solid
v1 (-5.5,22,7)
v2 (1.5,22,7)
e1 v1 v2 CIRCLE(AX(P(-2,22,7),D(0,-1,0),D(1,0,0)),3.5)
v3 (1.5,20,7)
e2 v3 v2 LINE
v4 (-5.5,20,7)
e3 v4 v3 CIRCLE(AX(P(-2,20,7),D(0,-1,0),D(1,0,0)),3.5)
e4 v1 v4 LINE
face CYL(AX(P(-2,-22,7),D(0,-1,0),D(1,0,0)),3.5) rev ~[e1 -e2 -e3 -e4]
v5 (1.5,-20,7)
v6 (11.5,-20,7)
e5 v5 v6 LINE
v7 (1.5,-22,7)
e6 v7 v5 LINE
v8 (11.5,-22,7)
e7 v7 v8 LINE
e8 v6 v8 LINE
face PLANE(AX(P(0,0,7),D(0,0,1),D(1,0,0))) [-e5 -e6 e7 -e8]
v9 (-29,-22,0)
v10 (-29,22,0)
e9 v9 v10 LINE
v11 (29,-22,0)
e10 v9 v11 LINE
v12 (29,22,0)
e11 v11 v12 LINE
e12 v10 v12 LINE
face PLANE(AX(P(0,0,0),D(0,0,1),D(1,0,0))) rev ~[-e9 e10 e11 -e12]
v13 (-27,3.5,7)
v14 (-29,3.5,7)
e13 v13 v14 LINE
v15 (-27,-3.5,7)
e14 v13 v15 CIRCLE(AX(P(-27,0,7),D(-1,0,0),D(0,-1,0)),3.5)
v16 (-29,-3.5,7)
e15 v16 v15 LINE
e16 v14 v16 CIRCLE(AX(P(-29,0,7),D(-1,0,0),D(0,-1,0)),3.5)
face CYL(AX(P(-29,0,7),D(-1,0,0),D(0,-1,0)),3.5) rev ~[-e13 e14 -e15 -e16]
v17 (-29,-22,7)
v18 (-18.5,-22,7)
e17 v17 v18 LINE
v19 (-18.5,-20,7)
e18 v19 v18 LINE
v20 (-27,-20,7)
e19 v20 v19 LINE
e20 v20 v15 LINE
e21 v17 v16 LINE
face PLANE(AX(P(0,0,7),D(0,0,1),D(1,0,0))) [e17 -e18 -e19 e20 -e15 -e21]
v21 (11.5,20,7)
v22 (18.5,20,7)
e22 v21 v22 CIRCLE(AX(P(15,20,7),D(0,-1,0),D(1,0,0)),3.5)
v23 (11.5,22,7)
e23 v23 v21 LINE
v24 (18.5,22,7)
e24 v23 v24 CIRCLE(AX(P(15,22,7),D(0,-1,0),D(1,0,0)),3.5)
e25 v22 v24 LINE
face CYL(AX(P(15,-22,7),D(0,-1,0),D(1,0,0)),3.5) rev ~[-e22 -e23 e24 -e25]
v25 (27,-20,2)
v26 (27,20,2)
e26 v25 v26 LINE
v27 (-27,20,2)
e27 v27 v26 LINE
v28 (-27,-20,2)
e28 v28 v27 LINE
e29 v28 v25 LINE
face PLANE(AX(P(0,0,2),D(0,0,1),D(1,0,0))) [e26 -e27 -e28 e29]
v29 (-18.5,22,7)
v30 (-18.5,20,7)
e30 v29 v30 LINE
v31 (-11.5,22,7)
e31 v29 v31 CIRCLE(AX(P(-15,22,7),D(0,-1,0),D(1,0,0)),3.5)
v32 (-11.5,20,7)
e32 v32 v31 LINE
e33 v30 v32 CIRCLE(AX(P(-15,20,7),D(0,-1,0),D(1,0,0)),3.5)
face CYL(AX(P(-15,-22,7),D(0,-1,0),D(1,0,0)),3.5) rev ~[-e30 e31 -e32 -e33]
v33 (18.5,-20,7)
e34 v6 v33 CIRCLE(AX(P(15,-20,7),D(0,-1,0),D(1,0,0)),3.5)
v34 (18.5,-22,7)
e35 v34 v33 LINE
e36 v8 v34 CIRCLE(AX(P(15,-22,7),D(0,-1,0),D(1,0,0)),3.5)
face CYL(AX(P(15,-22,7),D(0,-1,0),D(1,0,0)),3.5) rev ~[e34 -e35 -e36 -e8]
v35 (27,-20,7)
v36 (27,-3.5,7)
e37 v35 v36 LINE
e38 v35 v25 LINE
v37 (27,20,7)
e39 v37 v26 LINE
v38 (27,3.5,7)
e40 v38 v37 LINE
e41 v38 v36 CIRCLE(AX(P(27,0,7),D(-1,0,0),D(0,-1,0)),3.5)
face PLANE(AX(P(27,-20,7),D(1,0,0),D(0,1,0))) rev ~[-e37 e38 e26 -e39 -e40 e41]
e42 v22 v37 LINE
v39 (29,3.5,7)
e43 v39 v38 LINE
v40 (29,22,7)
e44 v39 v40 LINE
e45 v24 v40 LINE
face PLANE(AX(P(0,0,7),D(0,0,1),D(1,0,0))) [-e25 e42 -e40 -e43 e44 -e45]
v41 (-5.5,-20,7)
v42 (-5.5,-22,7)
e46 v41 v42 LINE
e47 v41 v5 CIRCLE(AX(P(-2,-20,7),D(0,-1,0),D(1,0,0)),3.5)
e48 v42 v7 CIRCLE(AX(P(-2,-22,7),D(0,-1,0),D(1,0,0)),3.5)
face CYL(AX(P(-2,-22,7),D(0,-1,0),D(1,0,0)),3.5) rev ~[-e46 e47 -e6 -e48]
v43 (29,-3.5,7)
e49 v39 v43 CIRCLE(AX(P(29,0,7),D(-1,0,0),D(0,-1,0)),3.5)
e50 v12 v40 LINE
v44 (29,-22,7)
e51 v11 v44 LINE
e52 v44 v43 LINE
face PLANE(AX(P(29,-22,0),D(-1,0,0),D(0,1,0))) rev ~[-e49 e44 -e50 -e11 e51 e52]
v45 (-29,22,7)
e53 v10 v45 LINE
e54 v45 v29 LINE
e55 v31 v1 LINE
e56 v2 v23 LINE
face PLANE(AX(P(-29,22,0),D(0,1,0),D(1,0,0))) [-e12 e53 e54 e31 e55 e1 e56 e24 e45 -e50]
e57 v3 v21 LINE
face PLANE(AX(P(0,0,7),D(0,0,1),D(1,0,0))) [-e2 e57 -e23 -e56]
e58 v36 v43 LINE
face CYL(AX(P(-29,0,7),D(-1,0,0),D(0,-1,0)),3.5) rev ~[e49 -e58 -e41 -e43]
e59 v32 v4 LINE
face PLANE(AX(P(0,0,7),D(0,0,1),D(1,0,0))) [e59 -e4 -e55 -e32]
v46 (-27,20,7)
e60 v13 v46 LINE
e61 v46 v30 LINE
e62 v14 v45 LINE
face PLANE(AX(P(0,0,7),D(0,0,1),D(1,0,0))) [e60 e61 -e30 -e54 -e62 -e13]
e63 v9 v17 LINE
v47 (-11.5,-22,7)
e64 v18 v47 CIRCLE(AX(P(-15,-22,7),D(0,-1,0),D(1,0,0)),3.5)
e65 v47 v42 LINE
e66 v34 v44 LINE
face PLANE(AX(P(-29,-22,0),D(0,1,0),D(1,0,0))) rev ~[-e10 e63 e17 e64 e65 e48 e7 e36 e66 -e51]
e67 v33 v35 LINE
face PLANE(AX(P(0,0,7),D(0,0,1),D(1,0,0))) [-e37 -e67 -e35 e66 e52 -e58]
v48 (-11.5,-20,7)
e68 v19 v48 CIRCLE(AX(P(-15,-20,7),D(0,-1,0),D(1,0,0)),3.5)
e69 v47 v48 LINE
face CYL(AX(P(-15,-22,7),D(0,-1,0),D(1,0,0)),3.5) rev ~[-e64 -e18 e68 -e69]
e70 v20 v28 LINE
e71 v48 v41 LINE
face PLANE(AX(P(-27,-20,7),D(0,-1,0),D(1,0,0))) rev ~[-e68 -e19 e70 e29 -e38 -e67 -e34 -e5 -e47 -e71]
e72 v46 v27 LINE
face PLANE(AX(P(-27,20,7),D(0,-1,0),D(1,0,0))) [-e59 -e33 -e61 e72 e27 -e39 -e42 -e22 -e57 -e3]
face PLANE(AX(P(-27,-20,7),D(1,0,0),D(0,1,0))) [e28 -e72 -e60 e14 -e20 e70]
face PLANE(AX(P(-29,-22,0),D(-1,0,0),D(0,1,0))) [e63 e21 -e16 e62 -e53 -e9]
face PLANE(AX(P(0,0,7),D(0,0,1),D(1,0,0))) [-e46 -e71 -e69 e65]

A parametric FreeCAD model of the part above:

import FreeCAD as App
import Part
import Sketcher


def add_polygon(sketch, points):
    """Adds a closed chain of lines whose ends are joined by coincident constraints."""
    first, n = sketch.GeometryCount, len(points)
    for a, b in zip(points, points[1:] + points[:1]):
        sketch.addGeometry(Part.LineSegment(App.Vector(*a, 0), App.Vector(*b, 0)), False)
    for i in range(n):
        sketch.addConstraint(Sketcher.Constraint("Coincident", first + i, 2, first + (i + 1) % n, 1))

doc = App.newDocument("Part")
body = doc.addObject("PartDesign::Body", "Body")

# Sketch on XY plane
sketch1 = body.newObject("Sketcher::SketchObject", "Sketch")
sketch1.AttachmentSupport = (doc.getObject("XY_Plane"), [""])
sketch1.MapMode = "FlatFace"
add_polygon(sketch1, [(-29, 22), (-29, -22), (29, -22), (29, 22)])  # lines 0-3
sketch1.addConstraint(Sketcher.Constraint("Vertical", 0))
sketch1.addConstraint(Sketcher.Constraint("Horizontal", 1))
sketch1.addConstraint(Sketcher.Constraint("Vertical", 2))
sketch1.addConstraint(Sketcher.Constraint("Horizontal", 3))
sketch1.addConstraint(Sketcher.Constraint("Symmetric", 0, 2, 2, 2, -1, 1))
sketch1.addConstraint(Sketcher.Constraint("DistanceX", 1, 1, 1, 2, 58.0))
sketch1.addConstraint(Sketcher.Constraint("DistanceY", 0, 2, 0, 1, 44.0))
pad1 = body.newObject("PartDesign::Pad", "Pad")
pad1.Profile = sketch1
pad1.Length = 7

# Sketch on XY plane
sketch2 = body.newObject("Sketcher::SketchObject", "Sketch001")
sketch2.AttachmentSupport = (doc.getObject("XY_Plane"), [""])
sketch2.MapMode = "FlatFace"
sketch2.AttachmentOffset = App.Placement(App.Vector(0, 0, 7), App.Rotation())
add_polygon(sketch2, [(-27, 20), (-27, -20), (27, -20), (27, 20)])  # lines 0-3
sketch2.addConstraint(Sketcher.Constraint("Vertical", 0))
sketch2.addConstraint(Sketcher.Constraint("Horizontal", 1))
sketch2.addConstraint(Sketcher.Constraint("Vertical", 2))
sketch2.addConstraint(Sketcher.Constraint("Horizontal", 3))
sketch2.addConstraint(Sketcher.Constraint("Symmetric", 0, 2, 2, 2, -1, 1))
sketch2.addConstraint(Sketcher.Constraint("DistanceX", 1, 1, 1, 2, 54.0))
sketch2.addConstraint(Sketcher.Constraint("DistanceY", 0, 2, 0, 1, 40.0))
pocket1 = body.newObject("PartDesign::Pocket", "Pocket")
pocket1.Profile = sketch2
pocket1.Length = 5

# Sketch on XZ plane
sketch3 = body.newObject("Sketcher::SketchObject", "Sketch002")
sketch3.AttachmentSupport = (doc.getObject("XZ_Plane"), [""])
sketch3.MapMode = "FlatFace"
sketch3.AttachmentOffset = App.Placement(App.Vector(0, 0, 22), App.Rotation())
sketch3.addGeometry(Part.Circle(App.Vector(-15, 7, 0), App.Vector(0, 0, 1), 3.5), False)
sketch3.addGeometry(Part.Circle(App.Vector(-2, 7, 0), App.Vector(0, 0, 1), 3.5), False)
sketch3.addGeometry(Part.Circle(App.Vector(15, 7, 0), App.Vector(0, 0, 1), 3.5), False)
sketch3.addConstraint(Sketcher.Constraint("Equal", 0, 1))
sketch3.addConstraint(Sketcher.Constraint("Equal", 1, 2))
sketch3.addConstraint(Sketcher.Constraint("Symmetric", 0, 3, 2, 3, -2))
sketch3.addConstraint(Sketcher.Constraint("Horizontal", 0, 3, 1, 3))
sketch3.addConstraint(Sketcher.Constraint("Diameter", 0, 7.0))
sketch3.addConstraint(Sketcher.Constraint("DistanceX", 0, 3, -1, 1, 15.0))
sketch3.addConstraint(Sketcher.Constraint("DistanceY", -1, 1, 0, 3, 7.0))
sketch3.addConstraint(Sketcher.Constraint("DistanceX", 1, 3, -1, 1, 2.0))
pocket2 = body.newObject("PartDesign::Pocket", "Pocket001")
pocket2.Profile = sketch3
pocket2.Length = 50

# Sketch on YZ plane
sketch4 = body.newObject("Sketcher::SketchObject", "Sketch003")
sketch4.AttachmentSupport = (doc.getObject("YZ_Plane"), [""])
sketch4.MapMode = "FlatFace"
sketch4.AttachmentOffset = App.Placement(App.Vector(0, 0, -29), App.Rotation())
sketch4.addGeometry(Part.Circle(App.Vector(0, 7, 0), App.Vector(0, 0, 1), 3.5), False)
sketch4.addConstraint(Sketcher.Constraint("PointOnObject", 0, 3, -2))
sketch4.addConstraint(Sketcher.Constraint("Diameter", 0, 7.0))
sketch4.addConstraint(Sketcher.Constraint("DistanceY", -1, 1, 0, 3, 7.0))
pocket3 = body.newObject("PartDesign::Pocket", "Pocket002")
pocket3.Profile = sketch4
pocket3.Length = 60
pocket3.Reversed = True

doc.recompute()
